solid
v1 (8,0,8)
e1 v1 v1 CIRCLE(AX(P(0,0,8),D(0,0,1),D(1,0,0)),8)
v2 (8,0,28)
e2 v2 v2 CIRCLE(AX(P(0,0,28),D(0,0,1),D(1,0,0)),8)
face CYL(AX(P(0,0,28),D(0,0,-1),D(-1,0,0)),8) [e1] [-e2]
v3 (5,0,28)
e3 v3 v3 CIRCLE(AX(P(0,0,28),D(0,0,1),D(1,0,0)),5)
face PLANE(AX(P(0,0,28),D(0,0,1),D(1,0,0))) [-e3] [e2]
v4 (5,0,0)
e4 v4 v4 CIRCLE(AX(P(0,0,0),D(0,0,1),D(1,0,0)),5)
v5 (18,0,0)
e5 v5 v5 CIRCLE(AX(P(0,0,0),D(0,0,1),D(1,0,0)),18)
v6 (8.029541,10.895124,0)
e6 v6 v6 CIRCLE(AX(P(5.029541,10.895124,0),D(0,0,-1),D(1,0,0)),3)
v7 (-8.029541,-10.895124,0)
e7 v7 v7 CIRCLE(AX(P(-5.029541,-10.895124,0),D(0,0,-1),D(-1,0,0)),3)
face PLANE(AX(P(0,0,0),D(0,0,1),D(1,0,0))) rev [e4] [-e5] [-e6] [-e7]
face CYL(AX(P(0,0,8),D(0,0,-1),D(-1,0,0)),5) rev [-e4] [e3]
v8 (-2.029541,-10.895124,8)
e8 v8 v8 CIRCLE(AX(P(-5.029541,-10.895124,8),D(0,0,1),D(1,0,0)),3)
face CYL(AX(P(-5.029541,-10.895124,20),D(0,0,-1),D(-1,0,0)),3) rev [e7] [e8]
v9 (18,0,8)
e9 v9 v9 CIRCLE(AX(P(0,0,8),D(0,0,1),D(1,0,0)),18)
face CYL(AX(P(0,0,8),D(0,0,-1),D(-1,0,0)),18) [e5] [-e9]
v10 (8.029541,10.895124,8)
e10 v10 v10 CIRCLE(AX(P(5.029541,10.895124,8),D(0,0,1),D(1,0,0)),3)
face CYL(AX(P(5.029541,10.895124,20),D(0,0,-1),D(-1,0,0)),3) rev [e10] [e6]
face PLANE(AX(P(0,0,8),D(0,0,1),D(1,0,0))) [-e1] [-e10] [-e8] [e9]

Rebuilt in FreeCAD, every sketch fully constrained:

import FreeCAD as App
import Part
import Sketcher

doc = App.newDocument("Part")
body = doc.addObject("PartDesign::Body", "Body")

sketch1 = doc.addObject("Sketcher::SketchObject", "Sketch")
body.addObject(sketch1)
sketch1.AttachmentSupport = (doc.XY_Plane, [""])
sketch1.MapMode = "FlatFace"
sketch1.addGeometry(Part.Circle(App.Vector(0, 0, 0), App.Vector(0, 0, 1), 18), False)
sketch1.addGeometry(Part.Circle(App.Vector(0, 0, 0), App.Vector(0, 0, 1), 5), False)
sketch1.addConstraint(Sketcher.Constraint("Coincident", 0, 3, -1, 1))
sketch1.addConstraint(Sketcher.Constraint("Coincident", 1, 3, -1, 1))
sketch1.addConstraint(Sketcher.Constraint("Diameter", 0, 36.0))
sketch1.addConstraint(Sketcher.Constraint("Diameter", 1, 10.0))
pad1 = doc.addObject("PartDesign::Pad", "Pad")
body.addObject(pad1)
pad1.Profile = sketch1
pad1.Length = 8

sketch2 = doc.addObject("Sketcher::SketchObject", "Sketch001")
body.addObject(sketch2)
sketch2.AttachmentSupport = (doc.XY_Plane, [""])
sketch2.MapMode = "FlatFace"
sketch2.AttachmentOffset = App.Placement(App.Vector(0, 0, 8), App.Rotation())
sketch2.addGeometry(Part.Circle(App.Vector(0, 0, 0), App.Vector(0, 0, 1), 8), False)
sketch2.addGeometry(Part.Circle(App.Vector(0, 0, 0), App.Vector(0, 0, 1), 5), False)
sketch2.addConstraint(Sketcher.Constraint("Coincident", 0, 3, -1, 1))
sketch2.addConstraint(Sketcher.Constraint("Coincident", 1, 3, -1, 1))
sketch2.addConstraint(Sketcher.Constraint("Diameter", 0, 16.0))
sketch2.addConstraint(Sketcher.Constraint("Diameter", 1, 10.0))
pad2 = doc.addObject("PartDesign::Pad", "Pad001")
body.addObject(pad2)
pad2.Profile = sketch2
pad2.Length = 20

sketch3 = doc.addObject("Sketcher::SketchObject", "Sketch002")
body.addObject(sketch3)
sketch3.AttachmentSupport = (doc.XY_Plane, [""])
sketch3.MapMode = "FlatFace"
sketch3.addGeometry(Part.Circle(App.Vector(-5.029541, -10.895124, 0), App.Vector(0, 0, 1), 3), False)
sketch3.addConstraint(Sketcher.Constraint("Diameter", 0, 6.0))
sketch3.addConstraint(Sketcher.Constraint("DistanceX", 0, 3, -1, 1, 5.029541))
sketch3.addConstraint(Sketcher.Constraint("DistanceY", 0, 3, -1, 1, 10.895124))
pocket1 = doc.addObject("PartDesign::Pocket", "Pocket")
body.addObject(pocket1)
pocket1.Profile = sketch3
pocket1.Length = 20
pocket1.Reversed = True
doc.recompute()

polarpattern = doc.addObject("PartDesign::PolarPattern", "PolarPattern")
body.addObject(polarpattern)
polarpattern.Originals = [pocket1]
polarpattern.Axis = (doc.Z_Axis, [""])
polarpattern.Angle = 360
polarpattern.Occurrences = 2
body.Tip = polarpattern

doc.recompute()
